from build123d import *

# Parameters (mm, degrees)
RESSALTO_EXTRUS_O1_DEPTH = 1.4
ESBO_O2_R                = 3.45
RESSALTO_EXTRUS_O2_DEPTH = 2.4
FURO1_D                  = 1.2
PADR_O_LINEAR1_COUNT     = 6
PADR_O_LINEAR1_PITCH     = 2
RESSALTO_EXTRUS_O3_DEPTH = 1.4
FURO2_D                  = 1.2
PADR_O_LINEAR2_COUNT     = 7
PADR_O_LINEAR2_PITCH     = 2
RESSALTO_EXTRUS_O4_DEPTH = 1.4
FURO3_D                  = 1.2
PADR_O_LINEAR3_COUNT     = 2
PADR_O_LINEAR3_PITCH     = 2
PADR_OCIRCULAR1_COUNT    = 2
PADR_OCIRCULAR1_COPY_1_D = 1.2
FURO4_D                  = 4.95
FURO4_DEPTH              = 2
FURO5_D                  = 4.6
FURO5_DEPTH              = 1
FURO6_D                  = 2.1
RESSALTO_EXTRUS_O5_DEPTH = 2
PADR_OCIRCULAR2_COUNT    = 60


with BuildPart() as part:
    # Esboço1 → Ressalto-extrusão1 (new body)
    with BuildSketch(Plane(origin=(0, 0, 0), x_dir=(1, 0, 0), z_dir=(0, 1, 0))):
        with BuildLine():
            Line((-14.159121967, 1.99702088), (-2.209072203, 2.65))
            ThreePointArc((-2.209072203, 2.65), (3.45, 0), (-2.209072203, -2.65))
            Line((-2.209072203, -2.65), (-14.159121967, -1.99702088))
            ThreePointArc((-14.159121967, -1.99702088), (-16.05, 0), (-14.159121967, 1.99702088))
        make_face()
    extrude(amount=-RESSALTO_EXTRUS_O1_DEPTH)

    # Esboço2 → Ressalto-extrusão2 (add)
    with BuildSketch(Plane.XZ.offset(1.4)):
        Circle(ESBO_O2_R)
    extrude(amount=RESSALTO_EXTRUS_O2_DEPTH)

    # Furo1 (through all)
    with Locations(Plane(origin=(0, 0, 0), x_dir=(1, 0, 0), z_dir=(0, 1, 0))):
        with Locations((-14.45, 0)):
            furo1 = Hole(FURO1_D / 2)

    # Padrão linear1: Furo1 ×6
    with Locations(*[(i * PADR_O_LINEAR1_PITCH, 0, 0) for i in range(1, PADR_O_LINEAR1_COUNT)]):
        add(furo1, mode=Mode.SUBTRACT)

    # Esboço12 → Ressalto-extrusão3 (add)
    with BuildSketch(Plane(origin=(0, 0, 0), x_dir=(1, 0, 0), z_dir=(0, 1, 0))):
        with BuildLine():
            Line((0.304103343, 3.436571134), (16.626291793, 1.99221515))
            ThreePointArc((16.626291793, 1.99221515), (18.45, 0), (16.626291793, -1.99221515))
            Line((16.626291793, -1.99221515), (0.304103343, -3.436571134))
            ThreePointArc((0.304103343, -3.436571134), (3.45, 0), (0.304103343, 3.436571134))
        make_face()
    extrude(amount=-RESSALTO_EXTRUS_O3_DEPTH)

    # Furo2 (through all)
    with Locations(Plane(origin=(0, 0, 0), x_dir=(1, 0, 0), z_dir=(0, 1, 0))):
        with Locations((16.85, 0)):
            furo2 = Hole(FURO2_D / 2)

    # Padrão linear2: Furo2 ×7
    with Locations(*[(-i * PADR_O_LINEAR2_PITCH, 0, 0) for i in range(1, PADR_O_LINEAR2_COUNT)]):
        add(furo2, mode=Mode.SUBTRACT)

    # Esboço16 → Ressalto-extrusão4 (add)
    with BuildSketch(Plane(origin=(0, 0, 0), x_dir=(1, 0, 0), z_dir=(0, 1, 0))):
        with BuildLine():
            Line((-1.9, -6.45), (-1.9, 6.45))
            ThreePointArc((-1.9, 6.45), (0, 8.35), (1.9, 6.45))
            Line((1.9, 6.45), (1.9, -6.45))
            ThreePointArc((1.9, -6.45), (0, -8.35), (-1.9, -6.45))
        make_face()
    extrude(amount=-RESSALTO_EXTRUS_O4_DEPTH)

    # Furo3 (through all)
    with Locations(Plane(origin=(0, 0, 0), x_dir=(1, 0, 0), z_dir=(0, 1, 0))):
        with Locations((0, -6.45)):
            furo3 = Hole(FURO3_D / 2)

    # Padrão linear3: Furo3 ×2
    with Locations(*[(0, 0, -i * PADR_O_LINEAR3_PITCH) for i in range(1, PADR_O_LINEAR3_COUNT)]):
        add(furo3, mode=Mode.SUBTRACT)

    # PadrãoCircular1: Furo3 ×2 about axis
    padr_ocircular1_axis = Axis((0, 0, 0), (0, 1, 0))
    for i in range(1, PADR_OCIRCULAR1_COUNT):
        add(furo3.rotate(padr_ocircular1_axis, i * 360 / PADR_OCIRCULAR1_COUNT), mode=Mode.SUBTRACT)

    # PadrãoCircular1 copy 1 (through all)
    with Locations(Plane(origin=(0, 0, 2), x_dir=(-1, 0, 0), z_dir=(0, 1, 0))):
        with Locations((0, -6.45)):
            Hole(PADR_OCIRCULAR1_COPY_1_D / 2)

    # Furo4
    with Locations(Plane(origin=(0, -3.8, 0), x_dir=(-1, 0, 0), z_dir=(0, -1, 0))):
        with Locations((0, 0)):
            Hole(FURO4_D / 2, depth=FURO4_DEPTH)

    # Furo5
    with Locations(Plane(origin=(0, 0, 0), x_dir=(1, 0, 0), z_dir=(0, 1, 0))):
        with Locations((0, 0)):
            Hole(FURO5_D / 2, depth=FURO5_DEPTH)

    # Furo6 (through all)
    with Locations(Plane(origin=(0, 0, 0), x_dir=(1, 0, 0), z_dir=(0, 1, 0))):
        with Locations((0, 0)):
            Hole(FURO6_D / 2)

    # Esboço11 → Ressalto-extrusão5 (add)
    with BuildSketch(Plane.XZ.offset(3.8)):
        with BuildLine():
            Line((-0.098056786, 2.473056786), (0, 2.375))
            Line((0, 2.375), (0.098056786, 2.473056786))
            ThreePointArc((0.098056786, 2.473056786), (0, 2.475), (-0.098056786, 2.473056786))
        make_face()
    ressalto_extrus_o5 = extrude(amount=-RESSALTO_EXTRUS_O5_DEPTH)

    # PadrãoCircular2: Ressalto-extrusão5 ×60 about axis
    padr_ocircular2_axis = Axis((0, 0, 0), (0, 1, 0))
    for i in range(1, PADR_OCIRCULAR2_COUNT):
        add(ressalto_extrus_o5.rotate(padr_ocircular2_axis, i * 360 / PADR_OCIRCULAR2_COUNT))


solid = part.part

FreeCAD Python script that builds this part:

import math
import FreeCAD as App
import Part
import Sketcher

doc = App.newDocument("Part")
params = doc.addObject("Spreadsheet::Sheet", "Params")
for row, (alias, value) in enumerate([
    ("sketch1_radius", "2 mm"),
    ("sketch1_radius2", "3.45 mm"),
    ("pad1_length", "1.4 mm"),
    ("sketch2_diameter", "6.9 mm"),
    ("pad2_length", "2.4 mm"),
    ("sketch3_diameter", "1.2 mm"),
    ("hole_diameter", "1.2 mm"),
    ("linearpattern_pitch", "2 mm"),
    ("sketch4_radius", "2 mm"),
    ("sketch4_radius2", "3.45 mm"),
    ("pad3_length", "1.4 mm"),
    ("sketch5_diameter", "1.2 mm"),
    ("hole2_diameter", "1.2 mm"),
    ("linearpattern2_pitch", "2 mm"),
    ("sketch6_radius", "1.9 mm"),
    ("sketch6_height", "12.9 mm"),
    ("pad4_length", "1.4 mm"),
    ("sketch7_diameter", "1.2 mm"),
    ("hole3_diameter", "1.2 mm"),
    ("linearpattern3_pitch", "2 mm"),
    ("sketch8_diameter", "1.2 mm"),
    ("hole4_diameter", "1.2 mm"),
    ("sketch9_diameter", "4.95 mm"),
    ("hole5_diameter", "4.95 mm"),
    ("hole5_depth", "2 mm"),
    ("sketch10_diameter", "4.6 mm"),
    ("hole6_diameter", "4.6 mm"),
    ("hole6_depth", "1 mm"),
    ("sketch11_diameter", "2.1 mm"),
    ("hole7_diameter", "2.1 mm"),
    ("pad5_length", "2 mm"),
], start=1):
    params.set(f"A{row}", alias)
    params.set(f"B{row}", "=" + value)
    params.setAlias(f"B{row}", alias)

body = doc.addObject("PartDesign::Body", "Body")

# Sketch on XZ plane
sketch1 = body.newObject("Sketcher::SketchObject", "Sketch")
sketch1.AttachmentSupport = (doc.getObject("XZ_Plane"), [""])
sketch1.MapMode = "FlatFace"
sketch1.addGeometry([
    Part.LineSegment(App.Vector(-2.209072, -2.65, 0), App.Vector(-14.159122, -1.997021, 0)),
    Part.ArcOfCircle(Part.Circle(App.Vector(-14.05, 0, 0), App.Vector(0, 0, 1), 2), math.radians(93.127667), math.radians(266.872333)),
    Part.LineSegment(App.Vector(-14.159122, 1.997021, 0), App.Vector(-2.209072, 2.65, 0)),
    Part.ArcOfCircle(Part.Circle(App.Vector(0, 0, 0), App.Vector(0, 0, 1), 3.45), math.radians(-129.814998), math.radians(129.814998)),
], False)
sketch1.addConstraint([
    Sketcher.Constraint("Tangent", 0, 2, 1, 2),
    Sketcher.Constraint("Tangent", 1, 1, 2, 1),
    Sketcher.Constraint("Coincident", 2, 2, 3, 2),
    Sketcher.Constraint("Coincident", 3, 1, 0, 1),
    Sketcher.Constraint("Coincident", 3, 3, -1, 1),
    Sketcher.Constraint("Symmetric", 0, 2, 1, 1, -1),
    Sketcher.Constraint("Radius", 1, 2.0),
    Sketcher.Constraint("Radius", 3, 3.45),
    Sketcher.Constraint("DistanceY", 3, 1, 2, 2, 5.3),
    Sketcher.Constraint("DistanceX", 1, 3, -1, 1, 14.05),
])
sketch1.setExpression("Constraints[6]", "Params.sketch1_radius")
sketch1.setExpression("Constraints[7]", "Params.sketch1_radius2")
pad1 = body.newObject("PartDesign::Pad", "Pad")
pad1.Profile = sketch1
pad1.setExpression("Length", "Params.pad1_length")

# Sketch on XZ plane
sketch2 = body.newObject("Sketcher::SketchObject", "Sketch001")
sketch2.AttachmentSupport = (doc.getObject("XZ_Plane"), [""])
sketch2.MapMode = "FlatFace"
sketch2.AttachmentOffset = App.Placement(App.Vector(0, 0, 1.4), App.Rotation())
sketch2.addGeometry(Part.Circle(App.Vector(0, 0, 0), App.Vector(0, 0, 1), 3.45), False)
sketch2.addConstraint([
    Sketcher.Constraint("Coincident", 0, 3, -1, 1),
    Sketcher.Constraint("Diameter", 0, 6.9),
])
sketch2.setExpression("Constraints[1]", "Params.sketch2_diameter")
pad2 = body.newObject("PartDesign::Pad", "Pad001")
pad2.Profile = sketch2
pad2.setExpression("Length", "Params.pad2_length")

# Sketch on XZ plane
sketch3 = body.newObject("Sketcher::SketchObject", "Sketch002")
sketch3.AttachmentSupport = (doc.getObject("XZ_Plane"), [""])
sketch3.MapMode = "FlatFace"
sketch3.addGeometry(Part.Circle(App.Vector(-14.45, 0, 0), App.Vector(0, 0, 1), 0.6), False)
sketch3.addConstraint([
    Sketcher.Constraint("PointOnObject", 0, 3, -1),
    Sketcher.Constraint("Diameter", 0, 1.2),
    Sketcher.Constraint("DistanceX", 0, 3, -1, 1, 14.45),
])
sketch3.setExpression("Constraints[1]", "Params.sketch3_diameter")
doc.recompute()
hole = body.newObject("PartDesign::Hole", "Hole")
hole.Profile = sketch3
hole.ThreadType = "None"
hole.setExpression("Diameter", "Params.hole_diameter")
hole.DepthType = "ThroughAll"
hole.Reversed = True
doc.recompute()

linearpattern = body.newObject("PartDesign::LinearPattern", "LinearPattern")
linearpattern.Originals = [hole]
linearpattern.Direction = (doc.getObject("X_Axis"), [""])
linearpattern.Mode = "offset"
linearpattern.setExpression("Offset", "Params.linearpattern_pitch")
linearpattern.Occurrences = 6
body.Tip = linearpattern

# Sketch on XZ plane
sketch4 = body.newObject("Sketcher::SketchObject", "Sketch003")
sketch4.AttachmentSupport = (doc.getObject("XZ_Plane"), [""])
sketch4.MapMode = "FlatFace"
sketch4.addGeometry([
    Part.LineSegment(App.Vector(16.626292, -1.992215, 0), App.Vector(0.304103, -3.436571, 0)),
    Part.ArcOfCircle(Part.Circle(App.Vector(0, 0, 0), App.Vector(0, 0, 1), 3.45), math.radians(-84.943049), math.radians(84.943049)),
    Part.LineSegment(App.Vector(0.304103, 3.436571, 0), App.Vector(16.626292, 1.992215, 0)),
    Part.ArcOfCircle(Part.Circle(App.Vector(16.45, 0, 0), App.Vector(0, 0, 1), 2), math.radians(-84.943049), math.radians(84.943049)),
], False)
sketch4.addConstraint([
    Sketcher.Constraint("Tangent", 0, 2, 1, 1),
    Sketcher.Constraint("Tangent", 1, 2, 2, 1),
    Sketcher.Constraint("Tangent", 2, 2, 3, 2),
    Sketcher.Constraint("Tangent", 3, 1, 0, 1),
    Sketcher.Constraint("Coincident", 1, 3, -1, 1),
    Sketcher.Constraint("PointOnObject", 3, 3, -1),
    Sketcher.Constraint("Radius", 3, 2.0),
    Sketcher.Constraint("Radius", 1, 3.45),
    Sketcher.Constraint("DistanceX", -1, 1, 3, 3, 16.45),
])
sketch4.setExpression("Constraints[6]", "Params.sketch4_radius")
sketch4.setExpression("Constraints[7]", "Params.sketch4_radius2")
pad3 = body.newObject("PartDesign::Pad", "Pad002")
pad3.Profile = sketch4
pad3.setExpression("Length", "Params.pad3_length")

# Sketch on XZ plane
sketch5 = body.newObject("Sketcher::SketchObject", "Sketch004")
sketch5.AttachmentSupport = (doc.getObject("XZ_Plane"), [""])
sketch5.MapMode = "FlatFace"
sketch5.addGeometry(Part.Circle(App.Vector(16.85, 0, 0), App.Vector(0, 0, 1), 0.6), False)
sketch5.addConstraint([
    Sketcher.Constraint("PointOnObject", 0, 3, -1),
    Sketcher.Constraint("Diameter", 0, 1.2),
    Sketcher.Constraint("DistanceX", -1, 1, 0, 3, 16.85),
])
sketch5.setExpression("Constraints[1]", "Params.sketch5_diameter")
doc.recompute()
hole2 = body.newObject("PartDesign::Hole", "Hole001")
hole2.Profile = sketch5
hole2.ThreadType = "None"
hole2.setExpression("Diameter", "Params.hole2_diameter")
hole2.DepthType = "ThroughAll"
hole2.Reversed = True
doc.recompute()

linearpattern2 = body.newObject("PartDesign::LinearPattern", "LinearPattern001")
linearpattern2.Originals = [hole2]
linearpattern2.Direction = (doc.getObject("X_Axis"), [""])
linearpattern2.Mode = "offset"
linearpattern2.setExpression("Offset", "Params.linearpattern2_pitch")
linearpattern2.Occurrences = 7
linearpattern2.Reversed = True
body.Tip = linearpattern2

# Sketch on XZ plane
sketch6 = body.newObject("Sketcher::SketchObject", "Sketch005")
sketch6.AttachmentSupport = (doc.getObject("XZ_Plane"), [""])
sketch6.MapMode = "FlatFace"
sketch6.addGeometry([
    Part.LineSegment(App.Vector(-1.9, -6.45, 0), App.Vector(-1.9, 6.45, 0)),
    Part.ArcOfCircle(Part.Circle(App.Vector(0, 6.45, 0), App.Vector(0, 0, 1), 1.9), math.radians(0), math.radians(180)),
    Part.LineSegment(App.Vector(1.9, 6.45, 0), App.Vector(1.9, -6.45, 0)),
    Part.ArcOfCircle(Part.Circle(App.Vector(0, -6.45, 0), App.Vector(0, 0, 1), 1.9), math.radians(180), math.radians(360)),
], False)
sketch6.addConstraint([
    Sketcher.Constraint("Tangent", 0, 2, 1, 2),
    Sketcher.Constraint("Tangent", 1, 1, 2, 1),
    Sketcher.Constraint("Tangent", 2, 2, 3, 2),
    Sketcher.Constraint("Tangent", 3, 1, 0, 1),
    Sketcher.Constraint("Vertical", 0),
    Sketcher.Constraint("Vertical", 2),
    Sketcher.Constraint("Symmetric", 1, 3, 3, 3, -1, 1),
    Sketcher.Constraint("Radius", 1, 1.9),
    Sketcher.Constraint("DistanceY", 0, 1, 0, 2, 12.9),
])
sketch6.setExpression("Constraints[7]", "Params.sketch6_radius")
sketch6.setExpression("Constraints[8]", "Params.sketch6_height")
pad4 = body.newObject("PartDesign::Pad", "Pad003")
pad4.Profile = sketch6
pad4.setExpression("Length", "Params.pad4_length")

# Sketch on XZ plane
sketch7 = body.newObject("Sketcher::SketchObject", "Sketch006")
sketch7.AttachmentSupport = (doc.getObject("XZ_Plane"), [""])
sketch7.MapMode = "FlatFace"
sketch7.addGeometry(Part.Circle(App.Vector(0, 6.45, 0), App.Vector(0, 0, 1), 0.6), False)
sketch7.addConstraint([
    Sketcher.Constraint("PointOnObject", 0, 3, -2),
    Sketcher.Constraint("Diameter", 0, 1.2),
    Sketcher.Constraint("DistanceY", -1, 1, 0, 3, 6.45),
])
sketch7.setExpression("Constraints[1]", "Params.sketch7_diameter")
doc.recompute()
hole3 = body.newObject("PartDesign::Hole", "Hole002")
hole3.Profile = sketch7
hole3.ThreadType = "None"
hole3.setExpression("Diameter", "Params.hole3_diameter")
hole3.DepthType = "ThroughAll"
hole3.Reversed = True
doc.recompute()

linearpattern3 = body.newObject("PartDesign::LinearPattern", "LinearPattern002")
linearpattern3.Originals = [hole3]
linearpattern3.Direction = (doc.getObject("Z_Axis"), [""])
linearpattern3.Mode = "offset"
linearpattern3.setExpression("Offset", "Params.linearpattern3_pitch")
linearpattern3.Occurrences = 2
linearpattern3.Reversed = True
body.Tip = linearpattern3
doc.recompute()

polarpattern = body.newObject("PartDesign::PolarPattern", "PolarPattern")
polarpattern.Originals = [hole3]
polarpattern.Axis = (doc.getObject("Y_Axis"), [""])
polarpattern.Angle = 360
polarpattern.Occurrences = 2
body.Tip = polarpattern

# Sketch on XZ plane
sketch8 = body.newObject("Sketcher::SketchObject", "Sketch007")
sketch8.AttachmentSupport = (doc.getObject("XZ_Plane"), [""])
sketch8.MapMode = "FlatFace"
sketch8.addGeometry(Part.Circle(App.Vector(0, -4.45, 0), App.Vector(0, 0, 1), 0.6), False)
sketch8.addConstraint([
    Sketcher.Constraint("PointOnObject", 0, 3, -2),
    Sketcher.Constraint("Diameter", 0, 1.2),
    Sketcher.Constraint("DistanceY", 0, 3, -1, 1, 4.45),
])
sketch8.setExpression("Constraints[1]", "Params.sketch8_diameter")
doc.recompute()
hole4 = body.newObject("PartDesign::Hole", "Hole003")
hole4.Profile = sketch8
hole4.ThreadType = "None"
hole4.setExpression("Diameter", "Params.hole4_diameter")
hole4.DepthType = "ThroughAll"
hole4.Reversed = True

# Sketch on XZ plane
sketch9 = body.newObject("Sketcher::SketchObject", "Sketch008")
sketch9.AttachmentSupport = (doc.getObject("XZ_Plane"), [""])
sketch9.MapMode = "FlatFace"
sketch9.AttachmentOffset = App.Placement(App.Vector(0, 0, 3.8), App.Rotation())
sketch9.addGeometry(Part.Circle(App.Vector(0, 0, 0), App.Vector(0, 0, 1), 2.475), False)
sketch9.addConstraint([
    Sketcher.Constraint("Coincident", 0, 3, -1, 1),
    Sketcher.Constraint("Diameter", 0, 4.95),
])
sketch9.setExpression("Constraints[1]", "Params.sketch9_diameter")
doc.recompute()
hole5 = body.newObject("PartDesign::Hole", "Hole004")
hole5.Profile = sketch9
hole5.ThreadType = "None"
hole5.setExpression("Diameter", "Params.hole5_diameter")
hole5.DepthType = "Dimension"
hole5.setExpression("Depth", "Params.hole5_depth")
hole5.DrillPoint = "Flat"

# Sketch on XZ plane
sketch10 = body.newObject("Sketcher::SketchObject", "Sketch009")
sketch10.AttachmentSupport = (doc.getObject("XZ_Plane"), [""])
sketch10.MapMode = "FlatFace"
sketch10.addGeometry(Part.Circle(App.Vector(0, 0, 0), App.Vector(0, 0, 1), 2.3), False)
sketch10.addConstraint([
    Sketcher.Constraint("Coincident", 0, 3, -1, 1),
    Sketcher.Constraint("Diameter", 0, 4.6),
])
sketch10.setExpression("Constraints[1]", "Params.sketch10_diameter")
doc.recompute()
hole6 = body.newObject("PartDesign::Hole", "Hole005")
hole6.Profile = sketch10
hole6.ThreadType = "None"
hole6.setExpression("Diameter", "Params.hole6_diameter")
hole6.DepthType = "Dimension"
hole6.setExpression("Depth", "Params.hole6_depth")
hole6.DrillPoint = "Flat"
hole6.Reversed = True

# Sketch on XZ plane
sketch11 = body.newObject("Sketcher::SketchObject", "Sketch010")
sketch11.AttachmentSupport = (doc.getObject("XZ_Plane"), [""])
sketch11.MapMode = "FlatFace"
sketch11.addGeometry(Part.Circle(App.Vector(0, 0, 0), App.Vector(0, 0, 1), 1.05), False)
sketch11.addConstraint([
    Sketcher.Constraint("Coincident", 0, 3, -1, 1),
    Sketcher.Constraint("Diameter", 0, 2.1),
])
sketch11.setExpression("Constraints[1]", "Params.sketch11_diameter")
doc.recompute()
hole7 = body.newObject("PartDesign::Hole", "Hole006")
hole7.Profile = sketch11
hole7.ThreadType = "None"
hole7.setExpression("Diameter", "Params.hole7_diameter")
hole7.DepthType = "ThroughAll"
hole7.Reversed = True

# Sketch on XZ plane
sketch12 = body.newObject("Sketcher::SketchObject", "Sketch011")
sketch12.AttachmentSupport = (doc.getObject("XZ_Plane"), [""])
sketch12.MapMode = "FlatFace"
sketch12.AttachmentOffset = App.Placement(App.Vector(0, 0, 3.8), App.Rotation())
sketch12.addGeometry([
    Part.LineSegment(App.Vector(-0.098057, 2.473057, 0), App.Vector(0, 2.375, 0)),
    Part.LineSegment(App.Vector(0, 2.375, 0), App.Vector(0.098057, 2.473057, 0)),
    Part.ArcOfCircle(Part.Circle(App.Vector(0, 0, 0), App.Vector(0, 0, 1), 2.475), math.radians(87.72941), math.radians(92.27059)),
], False)
sketch12.addConstraint([
    Sketcher.Constraint("Coincident", 0, 2, 1, 1),
    Sketcher.Constraint("Coincident", 1, 2, 2, 1),
    Sketcher.Constraint("Coincident", 2, 2, 0, 1),
    Sketcher.Constraint("Coincident", 2, 3, -1, 1),
    Sketcher.Constraint("PointOnObject", 0, 2, -2),
    Sketcher.Constraint("Perpendicular", 0, 1),
    Sketcher.Constraint("Horizontal", 1, 2, 2, 2),
    Sketcher.Constraint("Radius", 2, 2.475),
    Sketcher.Constraint("DistanceY", -1, 1, 0, 2, 2.375),
])
pad5 = body.newObject("PartDesign::Pad", "Pad004")
pad5.Profile = sketch12
pad5.setExpression("Length", "Params.pad5_length")
pad5.Reversed = True
doc.recompute()

polarpattern2 = body.newObject("PartDesign::PolarPattern", "PolarPattern001")
polarpattern2.Originals = [pad5]
polarpattern2.Axis = (doc.getObject("Y_Axis"), [""])
polarpattern2.Angle = 360
polarpattern2.Occurrences = 60
body.Tip = polarpattern2

doc.recompute()
